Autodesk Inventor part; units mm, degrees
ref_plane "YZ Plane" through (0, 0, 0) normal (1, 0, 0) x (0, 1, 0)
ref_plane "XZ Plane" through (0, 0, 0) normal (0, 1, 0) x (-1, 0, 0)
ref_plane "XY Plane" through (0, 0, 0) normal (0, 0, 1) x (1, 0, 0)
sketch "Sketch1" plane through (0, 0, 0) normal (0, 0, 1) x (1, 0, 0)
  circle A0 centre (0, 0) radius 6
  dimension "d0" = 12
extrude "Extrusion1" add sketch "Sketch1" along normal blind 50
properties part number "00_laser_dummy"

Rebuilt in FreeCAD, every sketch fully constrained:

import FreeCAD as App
import Part
import Sketcher

V = App.Vector

doc = App.newDocument("Part")
body = doc.addObject("PartDesign::Body", "Body")

# Sketch on XY plane
sketch1 = body.newObject("Sketcher::SketchObject", "Sketch")
sketch1.AttachmentSupport = (doc.getObject("XY_Plane"), [""])
sketch1.MapMode = "FlatFace"
sketch1.addGeometry(Part.Circle(V(0, 0, 0), V(0, 0, 1), 6), False)
sketch1.addConstraint([
    Sketcher.Constraint("Coincident", 0, 3, -1, 1),
    Sketcher.Constraint("Diameter", 0, 12.0),
])
pad1 = body.newObject("PartDesign::Pad", "Pad")
pad1.Profile = sketch1
pad1.Length = 50

doc.recompute()
